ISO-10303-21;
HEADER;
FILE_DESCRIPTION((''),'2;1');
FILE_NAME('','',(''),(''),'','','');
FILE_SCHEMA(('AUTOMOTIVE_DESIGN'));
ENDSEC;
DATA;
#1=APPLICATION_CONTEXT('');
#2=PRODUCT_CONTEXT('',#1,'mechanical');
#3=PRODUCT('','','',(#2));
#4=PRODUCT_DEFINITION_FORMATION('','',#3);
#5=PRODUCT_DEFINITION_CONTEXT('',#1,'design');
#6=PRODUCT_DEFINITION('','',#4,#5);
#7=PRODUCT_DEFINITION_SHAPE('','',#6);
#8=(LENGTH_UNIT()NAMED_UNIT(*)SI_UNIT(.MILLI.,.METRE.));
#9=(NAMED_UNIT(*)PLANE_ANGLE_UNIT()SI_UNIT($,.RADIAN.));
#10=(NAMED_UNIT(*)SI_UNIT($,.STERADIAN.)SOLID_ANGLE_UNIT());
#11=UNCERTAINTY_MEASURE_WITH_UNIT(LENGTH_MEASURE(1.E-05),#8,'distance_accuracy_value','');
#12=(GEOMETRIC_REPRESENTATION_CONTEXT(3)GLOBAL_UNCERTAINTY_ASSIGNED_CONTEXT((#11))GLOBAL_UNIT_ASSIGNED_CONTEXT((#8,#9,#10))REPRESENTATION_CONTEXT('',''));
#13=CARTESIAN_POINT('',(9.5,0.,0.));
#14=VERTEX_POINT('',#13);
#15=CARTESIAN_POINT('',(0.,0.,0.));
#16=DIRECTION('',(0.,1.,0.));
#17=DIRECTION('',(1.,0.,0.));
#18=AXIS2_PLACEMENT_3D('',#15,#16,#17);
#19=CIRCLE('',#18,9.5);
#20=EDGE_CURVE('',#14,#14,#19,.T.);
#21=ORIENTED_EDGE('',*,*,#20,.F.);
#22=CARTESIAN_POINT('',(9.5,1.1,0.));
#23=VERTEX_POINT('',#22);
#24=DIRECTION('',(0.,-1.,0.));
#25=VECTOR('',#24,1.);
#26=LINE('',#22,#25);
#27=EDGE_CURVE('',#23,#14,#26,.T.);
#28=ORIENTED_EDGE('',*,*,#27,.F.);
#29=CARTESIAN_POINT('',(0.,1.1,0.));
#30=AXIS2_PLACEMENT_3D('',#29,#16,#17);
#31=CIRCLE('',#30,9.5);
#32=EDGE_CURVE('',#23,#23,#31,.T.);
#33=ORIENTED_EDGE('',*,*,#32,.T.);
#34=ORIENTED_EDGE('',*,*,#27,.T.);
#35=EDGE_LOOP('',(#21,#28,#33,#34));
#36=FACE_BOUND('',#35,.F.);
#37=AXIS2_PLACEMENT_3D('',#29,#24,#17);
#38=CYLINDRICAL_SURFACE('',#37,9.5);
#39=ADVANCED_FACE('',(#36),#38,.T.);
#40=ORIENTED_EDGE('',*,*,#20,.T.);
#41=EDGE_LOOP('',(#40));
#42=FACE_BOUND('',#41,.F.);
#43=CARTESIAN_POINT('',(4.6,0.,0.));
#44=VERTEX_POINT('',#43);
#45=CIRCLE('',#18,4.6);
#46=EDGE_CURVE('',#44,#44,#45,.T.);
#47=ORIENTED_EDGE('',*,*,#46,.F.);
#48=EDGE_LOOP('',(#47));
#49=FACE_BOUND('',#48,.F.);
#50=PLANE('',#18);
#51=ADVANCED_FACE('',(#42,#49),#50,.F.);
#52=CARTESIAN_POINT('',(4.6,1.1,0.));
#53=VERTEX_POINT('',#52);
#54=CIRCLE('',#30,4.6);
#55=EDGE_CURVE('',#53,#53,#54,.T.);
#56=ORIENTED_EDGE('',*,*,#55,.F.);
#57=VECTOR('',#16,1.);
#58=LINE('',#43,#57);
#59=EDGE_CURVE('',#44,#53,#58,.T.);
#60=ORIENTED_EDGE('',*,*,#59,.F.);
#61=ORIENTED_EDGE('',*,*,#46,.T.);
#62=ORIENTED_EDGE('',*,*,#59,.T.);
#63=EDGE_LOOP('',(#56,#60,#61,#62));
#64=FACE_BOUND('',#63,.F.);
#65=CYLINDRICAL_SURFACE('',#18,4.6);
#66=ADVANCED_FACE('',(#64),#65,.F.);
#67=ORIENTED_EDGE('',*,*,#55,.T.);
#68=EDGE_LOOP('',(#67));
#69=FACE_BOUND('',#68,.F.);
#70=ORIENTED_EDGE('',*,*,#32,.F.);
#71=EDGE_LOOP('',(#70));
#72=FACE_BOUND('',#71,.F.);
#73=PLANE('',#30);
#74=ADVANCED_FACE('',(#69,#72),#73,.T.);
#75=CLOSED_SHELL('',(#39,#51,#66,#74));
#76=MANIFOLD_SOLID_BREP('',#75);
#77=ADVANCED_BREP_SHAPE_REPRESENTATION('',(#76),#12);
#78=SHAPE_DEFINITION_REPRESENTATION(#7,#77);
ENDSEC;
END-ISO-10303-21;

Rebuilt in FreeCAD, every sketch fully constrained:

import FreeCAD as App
import Part
import Sketcher
from FreeCAD import Vector
Q = App.Units.Quantity

doc = App.newDocument("Part")
body = doc.addObject("PartDesign::Body", "Body")

sketch1 = body.newObject("Sketcher::SketchObject", "Sketch")
sketch1.AttachmentSupport = (doc.getObject("XY_Plane"), [""])
sketch1.MapMode = "FlatFace"
sketch1.addGeometry(Part.LineSegment(Vector(4.6, 1.1, 0), Vector(4.6, 0, 0)), False)
sketch1.addGeometry(Part.LineSegment(Vector(4.6, 0, 0), Vector(9.5, 0, 0)), False)
sketch1.addGeometry(Part.LineSegment(Vector(9.5, 0, 0), Vector(9.5, 1.1, 0)), False)
sketch1.addGeometry(Part.LineSegment(Vector(9.5, 1.1, 0), Vector(4.6, 1.1, 0)), False)
sketch1.addConstraint(Sketcher.Constraint("Coincident", 0, 2, 1, 1))
sketch1.addConstraint(Sketcher.Constraint("Coincident", 1, 2, 2, 1))
sketch1.addConstraint(Sketcher.Constraint("Coincident", 2, 2, 3, 1))
sketch1.addConstraint(Sketcher.Constraint("Coincident", 3, 2, 0, 1))
sketch1.addConstraint(Sketcher.Constraint("Vertical", 0))
sketch1.addConstraint(Sketcher.Constraint("Horizontal", 1))
sketch1.addConstraint(Sketcher.Constraint("Vertical", 2))
sketch1.addConstraint(Sketcher.Constraint("Horizontal", 3))
sketch1.addConstraint(Sketcher.Constraint("PointOnObject", 0, 2, -1))
sketch1.addConstraint(Sketcher.Constraint("DistanceY", 0, 2, 0, 1, Q("1.1 mm")))
sketch1.addConstraint(Sketcher.Constraint("DistanceX", 1, 1, 1, 2, Q("4.9 mm")))
sketch1.addConstraint(Sketcher.Constraint("DistanceX", -1, 1, 0, 2, Q("4.6 mm")))
revolution = body.newObject("PartDesign::Revolution", "Revolution")
revolution.Profile = sketch1
revolution.ReferenceAxis = (sketch1, ["V_Axis"])
revolution.Angle = 360

doc.recompute()
